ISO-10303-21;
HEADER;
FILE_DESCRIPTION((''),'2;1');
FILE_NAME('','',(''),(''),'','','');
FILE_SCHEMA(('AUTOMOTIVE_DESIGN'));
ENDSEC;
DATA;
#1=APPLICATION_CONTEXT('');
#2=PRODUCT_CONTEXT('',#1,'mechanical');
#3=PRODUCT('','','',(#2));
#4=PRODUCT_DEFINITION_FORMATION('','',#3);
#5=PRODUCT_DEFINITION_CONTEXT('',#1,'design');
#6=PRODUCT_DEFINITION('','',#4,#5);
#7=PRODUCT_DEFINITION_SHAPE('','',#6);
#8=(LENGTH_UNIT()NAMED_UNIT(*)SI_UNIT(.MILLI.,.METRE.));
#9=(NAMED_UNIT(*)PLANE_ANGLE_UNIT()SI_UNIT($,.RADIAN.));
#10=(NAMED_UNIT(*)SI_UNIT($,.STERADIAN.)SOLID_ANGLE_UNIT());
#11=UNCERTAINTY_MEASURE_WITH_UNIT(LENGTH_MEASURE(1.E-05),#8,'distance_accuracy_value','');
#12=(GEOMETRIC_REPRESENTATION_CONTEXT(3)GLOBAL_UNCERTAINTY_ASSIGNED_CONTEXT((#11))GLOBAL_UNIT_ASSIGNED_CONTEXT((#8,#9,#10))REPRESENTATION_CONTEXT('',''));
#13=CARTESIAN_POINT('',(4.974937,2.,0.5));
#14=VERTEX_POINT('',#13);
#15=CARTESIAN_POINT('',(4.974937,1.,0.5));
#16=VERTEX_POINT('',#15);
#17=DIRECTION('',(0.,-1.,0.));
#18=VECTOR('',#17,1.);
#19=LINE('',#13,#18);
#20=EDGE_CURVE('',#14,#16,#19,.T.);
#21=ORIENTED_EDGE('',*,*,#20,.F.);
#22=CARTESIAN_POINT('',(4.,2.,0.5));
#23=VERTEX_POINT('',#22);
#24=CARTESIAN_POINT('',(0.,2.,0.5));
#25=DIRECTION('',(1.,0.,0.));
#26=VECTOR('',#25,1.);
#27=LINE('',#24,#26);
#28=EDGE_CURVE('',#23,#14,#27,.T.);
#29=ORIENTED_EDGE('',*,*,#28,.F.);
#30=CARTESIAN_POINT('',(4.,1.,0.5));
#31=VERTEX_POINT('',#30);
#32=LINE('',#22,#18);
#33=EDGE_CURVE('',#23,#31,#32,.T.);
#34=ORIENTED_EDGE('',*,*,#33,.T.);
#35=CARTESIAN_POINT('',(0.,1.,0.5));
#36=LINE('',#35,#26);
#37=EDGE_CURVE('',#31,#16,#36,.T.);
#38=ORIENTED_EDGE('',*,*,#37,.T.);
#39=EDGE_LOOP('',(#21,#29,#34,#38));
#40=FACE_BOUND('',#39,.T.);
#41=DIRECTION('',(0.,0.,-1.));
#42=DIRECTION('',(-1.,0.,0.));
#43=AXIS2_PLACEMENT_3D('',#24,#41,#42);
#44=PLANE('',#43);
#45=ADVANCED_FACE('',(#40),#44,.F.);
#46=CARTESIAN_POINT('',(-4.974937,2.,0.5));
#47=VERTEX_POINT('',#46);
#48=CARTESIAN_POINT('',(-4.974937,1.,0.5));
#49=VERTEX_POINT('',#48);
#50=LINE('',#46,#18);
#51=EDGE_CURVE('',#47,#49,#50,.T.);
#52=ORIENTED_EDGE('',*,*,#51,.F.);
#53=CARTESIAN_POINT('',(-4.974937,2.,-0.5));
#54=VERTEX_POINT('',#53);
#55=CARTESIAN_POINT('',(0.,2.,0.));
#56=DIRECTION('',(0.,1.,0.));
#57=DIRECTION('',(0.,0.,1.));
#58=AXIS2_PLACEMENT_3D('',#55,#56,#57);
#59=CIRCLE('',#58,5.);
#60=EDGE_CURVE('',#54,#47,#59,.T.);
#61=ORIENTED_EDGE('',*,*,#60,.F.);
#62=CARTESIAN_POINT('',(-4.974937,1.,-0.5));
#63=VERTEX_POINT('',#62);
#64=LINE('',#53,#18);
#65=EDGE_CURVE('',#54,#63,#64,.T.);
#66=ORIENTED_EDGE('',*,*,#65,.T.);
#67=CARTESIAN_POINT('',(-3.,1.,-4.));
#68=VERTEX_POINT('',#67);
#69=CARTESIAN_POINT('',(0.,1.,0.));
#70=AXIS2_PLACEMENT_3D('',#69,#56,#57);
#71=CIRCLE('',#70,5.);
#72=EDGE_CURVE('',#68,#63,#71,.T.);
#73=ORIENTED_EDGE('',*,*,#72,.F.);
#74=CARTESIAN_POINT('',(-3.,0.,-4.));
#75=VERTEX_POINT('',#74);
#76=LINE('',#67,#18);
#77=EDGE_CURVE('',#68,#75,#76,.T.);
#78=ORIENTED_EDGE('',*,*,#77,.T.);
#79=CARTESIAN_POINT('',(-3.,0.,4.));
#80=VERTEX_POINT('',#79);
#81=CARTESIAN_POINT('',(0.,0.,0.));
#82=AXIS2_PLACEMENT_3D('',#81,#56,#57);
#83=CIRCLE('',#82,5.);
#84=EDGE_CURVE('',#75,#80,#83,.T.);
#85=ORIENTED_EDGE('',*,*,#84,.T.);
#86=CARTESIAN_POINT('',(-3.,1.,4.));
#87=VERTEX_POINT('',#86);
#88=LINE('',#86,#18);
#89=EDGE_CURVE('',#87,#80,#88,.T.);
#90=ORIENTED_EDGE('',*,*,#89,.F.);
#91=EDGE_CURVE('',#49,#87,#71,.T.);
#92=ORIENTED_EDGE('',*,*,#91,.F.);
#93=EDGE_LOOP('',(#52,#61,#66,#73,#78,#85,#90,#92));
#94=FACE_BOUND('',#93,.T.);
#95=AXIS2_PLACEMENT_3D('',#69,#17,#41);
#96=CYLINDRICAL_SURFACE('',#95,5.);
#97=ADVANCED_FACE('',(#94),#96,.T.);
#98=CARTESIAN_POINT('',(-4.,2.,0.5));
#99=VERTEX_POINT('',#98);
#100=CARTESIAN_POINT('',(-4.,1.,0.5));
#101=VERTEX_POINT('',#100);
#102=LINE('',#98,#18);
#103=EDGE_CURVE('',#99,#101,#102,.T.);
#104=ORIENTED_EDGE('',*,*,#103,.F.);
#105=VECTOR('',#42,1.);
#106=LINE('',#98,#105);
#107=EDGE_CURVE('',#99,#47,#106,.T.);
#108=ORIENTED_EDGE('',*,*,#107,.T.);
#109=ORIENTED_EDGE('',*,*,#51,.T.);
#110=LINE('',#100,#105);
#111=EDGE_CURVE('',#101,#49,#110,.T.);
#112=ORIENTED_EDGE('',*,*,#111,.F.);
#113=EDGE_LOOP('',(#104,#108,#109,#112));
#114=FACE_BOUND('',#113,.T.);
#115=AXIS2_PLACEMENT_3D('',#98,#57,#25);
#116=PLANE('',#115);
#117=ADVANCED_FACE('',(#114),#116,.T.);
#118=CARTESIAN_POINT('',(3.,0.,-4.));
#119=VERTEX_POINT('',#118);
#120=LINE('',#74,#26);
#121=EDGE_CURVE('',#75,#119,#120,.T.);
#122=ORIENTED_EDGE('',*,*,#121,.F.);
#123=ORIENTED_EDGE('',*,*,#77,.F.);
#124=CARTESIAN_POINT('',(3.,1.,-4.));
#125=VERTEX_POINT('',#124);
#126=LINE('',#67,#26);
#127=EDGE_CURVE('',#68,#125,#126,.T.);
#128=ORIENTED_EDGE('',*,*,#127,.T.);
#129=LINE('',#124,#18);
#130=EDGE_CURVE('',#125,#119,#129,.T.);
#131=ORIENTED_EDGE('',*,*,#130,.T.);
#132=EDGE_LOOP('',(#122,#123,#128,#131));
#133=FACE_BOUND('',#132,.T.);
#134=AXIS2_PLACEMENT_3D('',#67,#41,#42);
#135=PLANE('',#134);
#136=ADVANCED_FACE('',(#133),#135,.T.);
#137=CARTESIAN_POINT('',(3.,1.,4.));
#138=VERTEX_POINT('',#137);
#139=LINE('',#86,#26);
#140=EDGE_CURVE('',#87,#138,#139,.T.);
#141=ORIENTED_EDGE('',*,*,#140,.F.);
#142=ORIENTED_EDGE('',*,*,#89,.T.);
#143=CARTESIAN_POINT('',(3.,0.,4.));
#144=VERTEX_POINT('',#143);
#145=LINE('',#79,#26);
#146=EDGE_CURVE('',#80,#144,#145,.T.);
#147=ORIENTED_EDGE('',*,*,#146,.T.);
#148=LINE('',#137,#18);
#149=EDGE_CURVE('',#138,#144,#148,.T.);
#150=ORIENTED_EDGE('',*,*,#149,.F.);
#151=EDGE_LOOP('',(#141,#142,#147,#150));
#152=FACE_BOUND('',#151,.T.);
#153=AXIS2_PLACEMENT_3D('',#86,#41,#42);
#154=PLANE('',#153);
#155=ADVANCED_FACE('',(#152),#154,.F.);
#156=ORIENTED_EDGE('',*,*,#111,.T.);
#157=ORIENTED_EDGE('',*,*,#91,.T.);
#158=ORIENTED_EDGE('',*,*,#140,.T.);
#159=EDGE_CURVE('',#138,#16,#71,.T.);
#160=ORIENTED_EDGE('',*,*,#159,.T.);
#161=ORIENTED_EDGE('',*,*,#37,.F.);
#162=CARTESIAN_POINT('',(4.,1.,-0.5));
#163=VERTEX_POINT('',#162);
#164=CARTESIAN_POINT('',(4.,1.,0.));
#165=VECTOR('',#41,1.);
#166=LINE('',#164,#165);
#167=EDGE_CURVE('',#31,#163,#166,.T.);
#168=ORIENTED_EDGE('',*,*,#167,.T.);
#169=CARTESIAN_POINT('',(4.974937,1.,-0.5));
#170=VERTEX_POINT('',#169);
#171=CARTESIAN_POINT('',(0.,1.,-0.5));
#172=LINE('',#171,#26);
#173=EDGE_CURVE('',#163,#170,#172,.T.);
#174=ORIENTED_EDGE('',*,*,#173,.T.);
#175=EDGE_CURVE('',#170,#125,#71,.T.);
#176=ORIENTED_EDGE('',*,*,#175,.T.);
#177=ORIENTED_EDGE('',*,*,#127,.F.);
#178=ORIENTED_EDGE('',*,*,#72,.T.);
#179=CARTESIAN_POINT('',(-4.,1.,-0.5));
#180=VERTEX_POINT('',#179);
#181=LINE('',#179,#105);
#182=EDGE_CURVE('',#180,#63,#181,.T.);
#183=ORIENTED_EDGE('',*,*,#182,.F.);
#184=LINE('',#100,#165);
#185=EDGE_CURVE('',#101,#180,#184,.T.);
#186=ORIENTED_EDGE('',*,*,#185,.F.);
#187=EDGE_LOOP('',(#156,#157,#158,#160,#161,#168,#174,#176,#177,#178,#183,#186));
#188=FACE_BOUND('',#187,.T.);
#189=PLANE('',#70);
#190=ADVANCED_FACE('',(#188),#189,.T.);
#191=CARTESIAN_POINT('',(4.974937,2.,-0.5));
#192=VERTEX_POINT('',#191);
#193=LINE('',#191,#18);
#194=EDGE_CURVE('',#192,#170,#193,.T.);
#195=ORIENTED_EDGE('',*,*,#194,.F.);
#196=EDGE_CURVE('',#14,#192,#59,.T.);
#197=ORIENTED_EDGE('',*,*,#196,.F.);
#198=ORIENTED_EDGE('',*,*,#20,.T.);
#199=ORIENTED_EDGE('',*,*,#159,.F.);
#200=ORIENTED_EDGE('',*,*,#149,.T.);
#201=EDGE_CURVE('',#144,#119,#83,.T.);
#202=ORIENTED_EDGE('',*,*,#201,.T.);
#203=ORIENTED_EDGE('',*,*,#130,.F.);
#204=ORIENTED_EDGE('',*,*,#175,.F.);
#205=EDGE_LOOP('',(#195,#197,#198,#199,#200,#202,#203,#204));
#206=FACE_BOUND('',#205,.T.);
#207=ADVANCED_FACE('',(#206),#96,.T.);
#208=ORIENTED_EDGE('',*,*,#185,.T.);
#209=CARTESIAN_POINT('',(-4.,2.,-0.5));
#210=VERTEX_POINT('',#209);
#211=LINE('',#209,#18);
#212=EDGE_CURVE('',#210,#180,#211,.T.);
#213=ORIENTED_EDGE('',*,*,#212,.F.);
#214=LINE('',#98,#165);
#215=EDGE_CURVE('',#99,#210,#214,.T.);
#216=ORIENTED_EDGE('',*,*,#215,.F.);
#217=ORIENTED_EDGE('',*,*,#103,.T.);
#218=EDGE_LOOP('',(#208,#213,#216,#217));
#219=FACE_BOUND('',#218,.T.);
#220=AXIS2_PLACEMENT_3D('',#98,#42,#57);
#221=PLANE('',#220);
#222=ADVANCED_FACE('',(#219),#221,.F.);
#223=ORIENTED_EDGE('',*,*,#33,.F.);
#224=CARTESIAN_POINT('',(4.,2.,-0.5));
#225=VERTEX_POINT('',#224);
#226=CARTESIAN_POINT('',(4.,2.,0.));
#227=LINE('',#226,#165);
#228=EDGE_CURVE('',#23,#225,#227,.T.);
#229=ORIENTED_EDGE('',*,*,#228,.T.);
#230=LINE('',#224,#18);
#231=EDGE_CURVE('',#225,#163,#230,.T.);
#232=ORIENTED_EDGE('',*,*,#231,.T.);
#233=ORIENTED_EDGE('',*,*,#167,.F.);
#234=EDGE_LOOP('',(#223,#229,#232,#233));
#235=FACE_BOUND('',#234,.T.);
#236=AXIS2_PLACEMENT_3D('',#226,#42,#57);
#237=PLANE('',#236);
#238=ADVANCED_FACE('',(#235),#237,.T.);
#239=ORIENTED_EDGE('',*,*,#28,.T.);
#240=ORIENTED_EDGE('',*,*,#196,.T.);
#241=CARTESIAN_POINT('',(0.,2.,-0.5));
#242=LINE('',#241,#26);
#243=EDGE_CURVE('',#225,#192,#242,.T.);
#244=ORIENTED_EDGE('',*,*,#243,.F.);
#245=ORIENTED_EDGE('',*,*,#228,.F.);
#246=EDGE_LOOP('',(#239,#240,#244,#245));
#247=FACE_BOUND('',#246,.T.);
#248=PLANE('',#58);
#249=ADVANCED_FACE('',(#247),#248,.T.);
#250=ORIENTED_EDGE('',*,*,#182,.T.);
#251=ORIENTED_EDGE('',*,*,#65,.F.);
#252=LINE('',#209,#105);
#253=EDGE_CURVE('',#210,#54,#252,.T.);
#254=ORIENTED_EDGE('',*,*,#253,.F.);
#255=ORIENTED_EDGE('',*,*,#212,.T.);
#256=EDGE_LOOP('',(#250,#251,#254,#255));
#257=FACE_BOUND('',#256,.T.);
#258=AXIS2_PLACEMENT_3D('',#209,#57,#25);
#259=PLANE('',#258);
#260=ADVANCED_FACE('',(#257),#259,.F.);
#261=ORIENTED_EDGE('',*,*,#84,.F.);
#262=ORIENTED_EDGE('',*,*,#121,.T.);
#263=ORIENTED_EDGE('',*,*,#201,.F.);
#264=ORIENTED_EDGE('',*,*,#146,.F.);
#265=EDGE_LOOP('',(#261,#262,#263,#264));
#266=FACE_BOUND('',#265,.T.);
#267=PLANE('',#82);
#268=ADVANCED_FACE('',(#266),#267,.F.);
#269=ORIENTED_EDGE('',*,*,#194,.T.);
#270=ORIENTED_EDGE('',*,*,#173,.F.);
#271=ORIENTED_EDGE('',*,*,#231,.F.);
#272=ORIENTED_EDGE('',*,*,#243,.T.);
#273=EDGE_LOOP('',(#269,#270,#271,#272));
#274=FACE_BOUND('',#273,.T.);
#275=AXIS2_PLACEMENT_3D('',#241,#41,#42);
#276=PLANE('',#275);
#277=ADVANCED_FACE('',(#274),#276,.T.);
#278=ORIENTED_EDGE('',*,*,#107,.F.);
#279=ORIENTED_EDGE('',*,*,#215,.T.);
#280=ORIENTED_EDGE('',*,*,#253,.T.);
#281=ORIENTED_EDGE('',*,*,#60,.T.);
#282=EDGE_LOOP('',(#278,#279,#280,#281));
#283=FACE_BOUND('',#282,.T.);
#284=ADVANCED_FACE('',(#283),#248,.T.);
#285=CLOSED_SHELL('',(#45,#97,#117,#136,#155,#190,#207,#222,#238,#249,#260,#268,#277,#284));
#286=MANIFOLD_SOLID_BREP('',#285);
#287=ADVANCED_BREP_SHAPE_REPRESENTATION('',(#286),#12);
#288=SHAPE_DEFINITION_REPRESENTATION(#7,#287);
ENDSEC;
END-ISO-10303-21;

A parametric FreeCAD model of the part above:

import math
import FreeCAD as App
import Part
import Sketcher
Q = App.Units.Quantity

doc = App.newDocument("Part")
params = doc.addObject("Spreadsheet::Sheet", "Params")
for row, (alias, value) in enumerate([
    ("sketch1_radius", "5 mm"),
    ("sketch1_width", "6 mm"),
    ("pad1_length", "1 mm"),
    ("sketch2_radius", "5 mm"),
    ("sketch2_height", "1 mm"),
    ("pad2_length", "1 mm"),
], start=1):
    params.set(f"A{row}", alias)
    params.set(f"B{row}", "=" + value)
    params.setAlias(f"B{row}", alias)

body = doc.addObject("PartDesign::Body", "Body")

# Sketch on XZ plane
sketch1 = body.newObject("Sketcher::SketchObject", "Sketch")
sketch1.AttachmentSupport = (doc.getObject("XZ_Plane"), [""])
sketch1.MapMode = "FlatFace"
sketch1.addGeometry([
    Part.LineSegment(App.Vector(3, -4, 0), App.Vector(-3, -4, 0)),
    Part.ArcOfCircle(Part.Circle(App.Vector(0, 0, 0), App.Vector(0, 0, 1), 5), math.radians(127), math.radians(233)),
    Part.LineSegment(App.Vector(-3, 4, 0), App.Vector(3, 4, 0)),
    Part.ArcOfCircle(Part.Circle(App.Vector(0, 0, 0), App.Vector(0, 0, 1), 5), math.radians(-53), math.radians(53)),
], False)
sketch1.addConstraint([
    Sketcher.Constraint("Coincident", 0, 2, 1, 2),
    Sketcher.Constraint("Coincident", 1, 1, 2, 1),
    Sketcher.Constraint("Coincident", 2, 2, 3, 2),
    Sketcher.Constraint("Coincident", 3, 1, 0, 1),
    Sketcher.Constraint("Horizontal", 0),
    Sketcher.Constraint("Horizontal", 2),
    Sketcher.Constraint("Coincident", 1, 3, -1, 1),
    Sketcher.Constraint("Coincident", 3, 3, -1, 1),
    Sketcher.Constraint("Equal", 1, 3),
    Sketcher.Constraint("Vertical", 0, 2, 1, 1),
    Sketcher.Constraint("Radius", 1, Q("5 mm")),
    Sketcher.Constraint("DistanceX", 0, 2, 0, 1, Q("6 mm")),
])
sketch1.setExpression("Constraints[10]", "Params.sketch1_radius")
sketch1.setExpression("Constraints[11]", "Params.sketch1_width")
pad1 = body.newObject("PartDesign::Pad", "Pad")
pad1.Profile = sketch1
pad1.setExpression("Length", "Params.pad1_length")
pad1.Reversed = True

# Sketch on XZ plane
sketch2 = body.newObject("Sketcher::SketchObject", "Sketch001")
sketch2.AttachmentSupport = (doc.getObject("XZ_Plane"), [""])
sketch2.MapMode = "FlatFace"
sketch2.AttachmentOffset = App.Placement(App.Vector(0, 0, -1), App.Rotation())
sketch2.addGeometry([
    Part.LineSegment(App.Vector(4, -0.5, 0), App.Vector(4, 0.5, 0)),  # 0
    Part.LineSegment(App.Vector(4, 0.5, 0), App.Vector(5, 0.5, 0)),  # 1
    Part.ArcOfCircle(Part.Circle(App.Vector(0, 0, 0), App.Vector(0, 0, 1), 5), math.radians(-5.74), math.radians(5.74)),  # 2
    Part.LineSegment(App.Vector(5, -0.5, 0), App.Vector(4, -0.5, 0)),  # 3
    Part.LineSegment(App.Vector(-4, 0.5, 0), App.Vector(-4, -0.5, 0)),  # 4
    Part.LineSegment(App.Vector(-4, -0.5, 0), App.Vector(-5, -0.5, 0)),  # 5
    Part.ArcOfCircle(Part.Circle(App.Vector(0, 0, 0), App.Vector(0, 0, 1), 5), math.radians(174.26), math.radians(185.74)),  # 6
    Part.LineSegment(App.Vector(-5, 0.5, 0), App.Vector(-4, 0.5, 0)),  # 7
], False)
sketch2.addConstraint([
    Sketcher.Constraint("Coincident", 0, 2, 1, 1),
    Sketcher.Constraint("Coincident", 1, 2, 2, 2),
    Sketcher.Constraint("Coincident", 2, 1, 3, 1),
    Sketcher.Constraint("Coincident", 3, 2, 0, 1),
    Sketcher.Constraint("Coincident", 4, 2, 5, 1),
    Sketcher.Constraint("Coincident", 5, 2, 6, 2),
    Sketcher.Constraint("Coincident", 6, 1, 7, 1),
    Sketcher.Constraint("Coincident", 7, 2, 4, 1),
    Sketcher.Constraint("Vertical", 0),
    Sketcher.Constraint("Horizontal", 1),
    Sketcher.Constraint("Horizontal", 3),
    Sketcher.Constraint("Vertical", 4),
    Sketcher.Constraint("Horizontal", 5),
    Sketcher.Constraint("Horizontal", 7),
    Sketcher.Constraint("Coincident", 2, 3, -1, 1),
    Sketcher.Constraint("Coincident", 6, 3, -1, 1),
    Sketcher.Constraint("Equal", 2, 6),
    Sketcher.Constraint("Symmetric", 0, 2, 4, 2, -1, 1),
    Sketcher.Constraint("Horizontal", 3, 2, 4, 2),
    Sketcher.Constraint("Horizontal", 1, 2, 6, 1),
    Sketcher.Constraint("Radius", 2, Q("5 mm")),
    Sketcher.Constraint("DistanceY", 0, 1, 0, 2, Q("1 mm")),
    Sketcher.Constraint("DistanceX", -1, 1, 0, 2, Q("4 mm")),
])
sketch2.setExpression("Constraints[20]", "Params.sketch2_radius")
sketch2.setExpression("Constraints[21]", "Params.sketch2_height")
pad2 = body.newObject("PartDesign::Pad", "Pad001")
pad2.Profile = sketch2
pad2.setExpression("Length", "Params.pad2_length")
pad2.Reversed = True

doc.recompute()
